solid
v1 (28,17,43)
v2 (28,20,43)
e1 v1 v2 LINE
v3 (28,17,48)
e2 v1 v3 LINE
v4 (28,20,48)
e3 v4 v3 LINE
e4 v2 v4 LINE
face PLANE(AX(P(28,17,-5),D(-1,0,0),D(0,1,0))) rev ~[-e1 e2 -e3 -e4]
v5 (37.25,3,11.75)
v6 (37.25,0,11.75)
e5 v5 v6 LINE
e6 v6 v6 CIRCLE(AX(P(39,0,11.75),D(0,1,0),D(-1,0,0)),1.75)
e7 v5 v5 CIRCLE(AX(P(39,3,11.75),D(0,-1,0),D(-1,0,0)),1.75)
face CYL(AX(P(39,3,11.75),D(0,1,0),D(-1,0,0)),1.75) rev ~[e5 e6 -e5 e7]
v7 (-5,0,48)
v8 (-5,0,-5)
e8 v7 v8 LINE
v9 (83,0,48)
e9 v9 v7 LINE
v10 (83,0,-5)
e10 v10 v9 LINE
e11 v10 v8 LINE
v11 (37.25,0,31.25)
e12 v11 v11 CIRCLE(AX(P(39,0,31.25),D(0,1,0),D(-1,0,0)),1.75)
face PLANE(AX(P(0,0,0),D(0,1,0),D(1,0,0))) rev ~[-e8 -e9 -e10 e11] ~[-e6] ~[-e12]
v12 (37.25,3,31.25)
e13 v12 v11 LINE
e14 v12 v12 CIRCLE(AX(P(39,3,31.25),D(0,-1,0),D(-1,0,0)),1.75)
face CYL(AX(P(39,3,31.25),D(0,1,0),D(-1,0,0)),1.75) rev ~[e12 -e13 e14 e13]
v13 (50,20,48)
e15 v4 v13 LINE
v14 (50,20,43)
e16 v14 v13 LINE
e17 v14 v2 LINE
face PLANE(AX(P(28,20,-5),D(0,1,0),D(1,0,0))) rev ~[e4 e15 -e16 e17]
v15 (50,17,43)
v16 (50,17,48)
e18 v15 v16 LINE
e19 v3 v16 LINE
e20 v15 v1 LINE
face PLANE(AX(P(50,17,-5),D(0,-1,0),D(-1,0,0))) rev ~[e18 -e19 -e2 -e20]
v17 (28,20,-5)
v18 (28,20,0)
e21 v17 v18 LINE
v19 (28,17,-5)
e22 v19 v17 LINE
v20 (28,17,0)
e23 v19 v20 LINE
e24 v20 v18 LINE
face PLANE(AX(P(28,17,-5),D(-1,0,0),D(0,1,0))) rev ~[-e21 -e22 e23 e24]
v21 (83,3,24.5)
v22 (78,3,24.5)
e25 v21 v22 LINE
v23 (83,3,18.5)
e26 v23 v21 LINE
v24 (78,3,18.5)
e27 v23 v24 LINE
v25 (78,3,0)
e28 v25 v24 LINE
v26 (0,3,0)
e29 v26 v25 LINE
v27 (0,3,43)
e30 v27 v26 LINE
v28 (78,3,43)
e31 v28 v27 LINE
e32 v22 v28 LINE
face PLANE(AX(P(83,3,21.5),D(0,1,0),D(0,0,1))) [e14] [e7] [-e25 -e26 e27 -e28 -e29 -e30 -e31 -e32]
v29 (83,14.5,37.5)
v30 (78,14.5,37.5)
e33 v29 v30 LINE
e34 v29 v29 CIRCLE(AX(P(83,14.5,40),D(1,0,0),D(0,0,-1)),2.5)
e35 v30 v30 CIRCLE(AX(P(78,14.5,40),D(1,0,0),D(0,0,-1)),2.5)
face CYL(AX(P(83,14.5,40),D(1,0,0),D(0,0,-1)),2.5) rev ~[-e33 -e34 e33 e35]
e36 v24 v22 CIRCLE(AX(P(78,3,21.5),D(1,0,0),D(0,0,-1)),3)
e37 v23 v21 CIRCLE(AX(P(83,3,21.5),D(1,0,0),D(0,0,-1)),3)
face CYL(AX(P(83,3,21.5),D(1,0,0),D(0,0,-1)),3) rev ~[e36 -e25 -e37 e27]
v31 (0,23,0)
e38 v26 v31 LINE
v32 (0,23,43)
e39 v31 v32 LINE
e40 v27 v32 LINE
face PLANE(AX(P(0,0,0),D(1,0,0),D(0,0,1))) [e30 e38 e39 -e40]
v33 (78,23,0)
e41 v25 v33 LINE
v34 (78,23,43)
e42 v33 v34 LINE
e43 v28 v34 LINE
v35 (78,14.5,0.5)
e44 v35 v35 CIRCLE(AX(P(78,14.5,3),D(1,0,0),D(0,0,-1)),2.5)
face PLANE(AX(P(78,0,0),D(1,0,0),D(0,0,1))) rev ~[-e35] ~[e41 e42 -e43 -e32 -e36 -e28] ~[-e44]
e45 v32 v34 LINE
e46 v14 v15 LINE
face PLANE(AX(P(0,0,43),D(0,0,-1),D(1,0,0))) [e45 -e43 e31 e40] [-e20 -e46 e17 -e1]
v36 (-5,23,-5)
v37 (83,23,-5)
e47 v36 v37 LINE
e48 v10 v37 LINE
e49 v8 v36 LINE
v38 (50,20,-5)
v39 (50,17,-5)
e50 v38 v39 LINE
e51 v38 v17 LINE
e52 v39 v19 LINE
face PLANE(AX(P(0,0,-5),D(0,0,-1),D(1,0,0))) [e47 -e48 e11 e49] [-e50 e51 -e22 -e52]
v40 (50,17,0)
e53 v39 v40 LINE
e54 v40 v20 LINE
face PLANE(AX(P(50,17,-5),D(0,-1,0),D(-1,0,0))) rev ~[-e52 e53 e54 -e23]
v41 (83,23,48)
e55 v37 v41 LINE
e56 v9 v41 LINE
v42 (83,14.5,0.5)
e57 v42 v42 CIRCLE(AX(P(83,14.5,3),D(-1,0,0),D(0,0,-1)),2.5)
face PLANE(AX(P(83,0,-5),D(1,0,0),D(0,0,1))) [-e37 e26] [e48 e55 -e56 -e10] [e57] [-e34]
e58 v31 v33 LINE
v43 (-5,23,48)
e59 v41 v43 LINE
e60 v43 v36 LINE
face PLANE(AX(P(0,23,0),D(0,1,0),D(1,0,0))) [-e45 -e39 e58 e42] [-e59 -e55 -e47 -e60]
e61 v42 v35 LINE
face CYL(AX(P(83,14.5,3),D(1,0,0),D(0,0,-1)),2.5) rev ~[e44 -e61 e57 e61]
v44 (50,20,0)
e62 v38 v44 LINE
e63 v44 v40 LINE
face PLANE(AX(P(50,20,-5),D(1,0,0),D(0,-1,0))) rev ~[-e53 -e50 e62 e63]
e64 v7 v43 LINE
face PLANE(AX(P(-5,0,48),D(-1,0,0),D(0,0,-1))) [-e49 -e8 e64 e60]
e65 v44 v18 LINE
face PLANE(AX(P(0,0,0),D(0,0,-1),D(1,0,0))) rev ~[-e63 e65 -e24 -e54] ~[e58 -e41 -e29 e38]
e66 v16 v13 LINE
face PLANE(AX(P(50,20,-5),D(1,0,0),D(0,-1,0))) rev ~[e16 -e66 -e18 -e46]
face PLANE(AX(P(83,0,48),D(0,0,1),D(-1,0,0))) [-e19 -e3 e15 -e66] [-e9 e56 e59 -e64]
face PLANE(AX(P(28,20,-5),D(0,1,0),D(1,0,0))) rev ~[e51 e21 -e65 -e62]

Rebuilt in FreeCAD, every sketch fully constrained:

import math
import FreeCAD as App
import Part
import Sketcher
from FreeCAD import Vector
Q = App.Units.Quantity

doc = App.newDocument("Part")
body = doc.addObject("PartDesign::Body", "Body")

sketch1 = doc.addObject("Sketcher::SketchObject", "Sketch")
body.addObject(sketch1)
sketch1.AttachmentSupport = (doc.XZ_Plane, [""])
sketch1.MapMode = "FlatFace"
sketch1.addGeometry([
    Part.LineSegment(Vector(83, -5, 0), Vector(-5, -5, 0)),
    Part.LineSegment(Vector(-5, -5, 0), Vector(-5, 48, 0)),
    Part.LineSegment(Vector(-5, 48, 0), Vector(83, 48, 0)),
    Part.LineSegment(Vector(83, 48, 0), Vector(83, -5, 0)),
    Part.LineSegment(Vector(0, 43, 0), Vector(0, 0, 0)),
    Part.LineSegment(Vector(0, 0, 0), Vector(78, 0, 0)),
    Part.LineSegment(Vector(78, 0, 0), Vector(78, 43, 0)),
    Part.LineSegment(Vector(78, 43, 0), Vector(0, 43, 0)),
], False)
sketch1.addConstraint([
    Sketcher.Constraint("Coincident", 0, 2, 1, 1),
    Sketcher.Constraint("Coincident", 1, 2, 2, 1),
    Sketcher.Constraint("Coincident", 2, 2, 3, 1),
    Sketcher.Constraint("Coincident", 3, 2, 0, 1),
    Sketcher.Constraint("Coincident", 4, 2, 5, 1),
    Sketcher.Constraint("Coincident", 5, 2, 6, 1),
    Sketcher.Constraint("Coincident", 6, 2, 7, 1),
    Sketcher.Constraint("Coincident", 7, 2, 4, 1),
    Sketcher.Constraint("Horizontal", 0),
    Sketcher.Constraint("Vertical", 1),
    Sketcher.Constraint("Horizontal", 2),
    Sketcher.Constraint("Vertical", 3),
    Sketcher.Constraint("Vertical", 4),
    Sketcher.Constraint("Horizontal", 5),
    Sketcher.Constraint("Vertical", 6),
    Sketcher.Constraint("Horizontal", 7),
    Sketcher.Constraint("Coincident", 4, 2, -1, 1),
    Sketcher.Constraint("DistanceX", 0, 2, 0, 1, Q("88 mm")),
    Sketcher.Constraint("DistanceX", 5, 1, 5, 2, Q("78 mm")),
    Sketcher.Constraint("DistanceY", 1, 1, 1, 2, Q("53 mm")),
    Sketcher.Constraint("DistanceY", 4, 2, 4, 1, Q("43 mm")),
    Sketcher.Constraint("DistanceX", 0, 2, -1, 1, Q("5 mm")),
    Sketcher.Constraint("DistanceY", 0, 2, -1, 1, Q("5 mm")),
])
pad1 = doc.addObject("PartDesign::Pad", "Pad")
body.addObject(pad1)
pad1.Profile = sketch1
pad1.Length = 23
pad1.Reversed = True

sketch2 = doc.addObject("Sketcher::SketchObject", "Sketch001")
body.addObject(sketch2)
sketch2.AttachmentSupport = (doc.XZ_Plane, [""])
sketch2.MapMode = "FlatFace"
sketch2.addGeometry([
    Part.LineSegment(Vector(78, 0, 0), Vector(0, 0, 0)),
    Part.LineSegment(Vector(0, 0, 0), Vector(0, 43, 0)),
    Part.LineSegment(Vector(0, 43, 0), Vector(78, 43, 0)),
    Part.LineSegment(Vector(78, 43, 0), Vector(78, 0, 0)),
], False)
sketch2.addConstraint([
    Sketcher.Constraint("Coincident", 0, 2, 1, 1),
    Sketcher.Constraint("Coincident", 1, 2, 2, 1),
    Sketcher.Constraint("Coincident", 2, 2, 3, 1),
    Sketcher.Constraint("Coincident", 3, 2, 0, 1),
    Sketcher.Constraint("Horizontal", 0),
    Sketcher.Constraint("Vertical", 1),
    Sketcher.Constraint("Horizontal", 2),
    Sketcher.Constraint("Vertical", 3),
    Sketcher.Constraint("Coincident", 0, 2, -1, 1),
    Sketcher.Constraint("DistanceX", 0, 2, 0, 1, Q("78 mm")),
    Sketcher.Constraint("DistanceY", 1, 1, 1, 2, Q("43 mm")),
])
pad2 = doc.addObject("PartDesign::Pad", "Pad001")
body.addObject(pad2)
pad2.Profile = sketch2
pad2.Length = 3
pad2.Reversed = True

sketch3 = doc.addObject("Sketcher::SketchObject", "Sketch002")
body.addObject(sketch3)
sketch3.AttachmentSupport = (doc.XZ_Plane, [""])
sketch3.MapMode = "FlatFace"
sketch3.AttachmentOffset = App.Placement(Vector(0, 0, -3), App.Rotation())
sketch3.addGeometry([
    Part.Circle(Vector(39, 11.8, 0), Vector(0, 0, 1), 1.8),
    Part.Circle(Vector(39, 31.2, 0), Vector(0, 0, 1), 1.8),
], False)
sketch3.addConstraint([
    Sketcher.Constraint("Equal", 0, 1),
    Sketcher.Constraint("Vertical", 0, 3, 1, 3),
    Sketcher.Constraint("Diameter", 0, Q("3.5 mm")),
    Sketcher.Constraint("DistanceX", -1, 1, 0, 3, Q("39 mm")),
    Sketcher.Constraint("DistanceY", 0, 3, 1, 3, Q("19.5 mm")),
    Sketcher.Constraint("DistanceY", -1, 1, 0, 3, Q("11.75 mm")),
])
pocket1 = doc.addObject("PartDesign::Pocket", "Pocket")
body.addObject(pocket1)
pocket1.Profile = sketch3
pocket1.Length = 20
pocket1.Reversed = True

sketch4 = doc.addObject("Sketcher::SketchObject", "Sketch003")
body.addObject(sketch4)
sketch4.AttachmentSupport = (doc.YZ_Plane, [""])
sketch4.MapMode = "FlatFace"
sketch4.AttachmentOffset = App.Placement(Vector(0, 0, 83), App.Rotation())
sketch4.addGeometry([
    Part.LineSegment(Vector(3, 24.5, 0), Vector(3, 18.5, 0)),
    Part.ArcOfCircle(Part.Circle(Vector(3, 21.5, 0), Vector(0, 0, 1), 3), math.radians(-90), math.radians(90)),
], False)
sketch4.addConstraint([
    Sketcher.Constraint("Coincident", 0, 1, 1, 2),
    Sketcher.Constraint("Coincident", 1, 1, 0, 2),
    Sketcher.Constraint("Vertical", 0),
    Sketcher.Constraint("Vertical", 1, 3, 0, 1),
    Sketcher.Constraint("Radius", 1, Q("3 mm")),
    Sketcher.Constraint("DistanceX", -1, 1, 1, 3, Q("3 mm")),
    Sketcher.Constraint("DistanceY", -1, 1, 1, 3, Q("21.5 mm")),
])
pocket2 = doc.addObject("PartDesign::Pocket", "Pocket001")
body.addObject(pocket2)
pocket2.Profile = sketch4
pocket2.Length = 20

sketch5 = doc.addObject("Sketcher::SketchObject", "Sketch004")
body.addObject(sketch5)
sketch5.AttachmentSupport = (doc.YZ_Plane, [""])
sketch5.MapMode = "FlatFace"
sketch5.AttachmentOffset = App.Placement(Vector(0, 0, 83), App.Rotation())
sketch5.addGeometry([
    Part.Circle(Vector(14.5, 40, 0), Vector(0, 0, 1), 2.5),
    Part.Circle(Vector(14.5, 3, 0), Vector(0, 0, 1), 2.5),
], False)
sketch5.addConstraint([
    Sketcher.Constraint("Equal", 0, 1),
    Sketcher.Constraint("Vertical", 0, 3, 1, 3),
    Sketcher.Constraint("Diameter", 0, Q("5 mm")),
    Sketcher.Constraint("DistanceY", -1, 1, 0, 3, Q("40 mm")),
    Sketcher.Constraint("DistanceY", -1, 1, 1, 3, Q("3 mm")),
    Sketcher.Constraint("DistanceX", -1, 1, 0, 3, Q("14.5 mm")),
])
pocket3 = doc.addObject("PartDesign::Pocket", "Pocket002")
body.addObject(pocket3)
pocket3.Profile = sketch5
pocket3.Length = 50

sketch6 = doc.addObject("Sketcher::SketchObject", "Sketch005")
body.addObject(sketch6)
sketch6.AttachmentSupport = (doc.XY_Plane, [""])
sketch6.MapMode = "FlatFace"
sketch6.AttachmentOffset = App.Placement(Vector(0, 0, -5), App.Rotation())
sketch6.addGeometry([
    Part.LineSegment(Vector(28, 20, 0), Vector(50, 20, 0)),
    Part.LineSegment(Vector(50, 20, 0), Vector(50, 17, 0)),
    Part.LineSegment(Vector(50, 17, 0), Vector(28, 17, 0)),
    Part.LineSegment(Vector(28, 17, 0), Vector(28, 20, 0)),
], False)
sketch6.addConstraint([
    Sketcher.Constraint("Coincident", 0, 2, 1, 1),
    Sketcher.Constraint("Coincident", 1, 2, 2, 1),
    Sketcher.Constraint("Coincident", 2, 2, 3, 1),
    Sketcher.Constraint("Coincident", 3, 2, 0, 1),
    Sketcher.Constraint("Horizontal", 0),
    Sketcher.Constraint("Vertical", 1),
    Sketcher.Constraint("Horizontal", 2),
    Sketcher.Constraint("Vertical", 3),
    Sketcher.Constraint("DistanceX", 0, 1, 0, 2, Q("22 mm")),
    Sketcher.Constraint("DistanceY", 1, 2, 1, 1, Q("3 mm")),
    Sketcher.Constraint("DistanceX", -1, 1, 0, 2, Q("50 mm")),
    Sketcher.Constraint("DistanceY", -1, 1, 0, 2, Q("20 mm")),
])
pocket4 = doc.addObject("PartDesign::Pocket", "Pocket003")
body.addObject(pocket4)
pocket4.Profile = sketch6
pocket4.Length = 100
pocket4.Reversed = True

doc.recompute()
